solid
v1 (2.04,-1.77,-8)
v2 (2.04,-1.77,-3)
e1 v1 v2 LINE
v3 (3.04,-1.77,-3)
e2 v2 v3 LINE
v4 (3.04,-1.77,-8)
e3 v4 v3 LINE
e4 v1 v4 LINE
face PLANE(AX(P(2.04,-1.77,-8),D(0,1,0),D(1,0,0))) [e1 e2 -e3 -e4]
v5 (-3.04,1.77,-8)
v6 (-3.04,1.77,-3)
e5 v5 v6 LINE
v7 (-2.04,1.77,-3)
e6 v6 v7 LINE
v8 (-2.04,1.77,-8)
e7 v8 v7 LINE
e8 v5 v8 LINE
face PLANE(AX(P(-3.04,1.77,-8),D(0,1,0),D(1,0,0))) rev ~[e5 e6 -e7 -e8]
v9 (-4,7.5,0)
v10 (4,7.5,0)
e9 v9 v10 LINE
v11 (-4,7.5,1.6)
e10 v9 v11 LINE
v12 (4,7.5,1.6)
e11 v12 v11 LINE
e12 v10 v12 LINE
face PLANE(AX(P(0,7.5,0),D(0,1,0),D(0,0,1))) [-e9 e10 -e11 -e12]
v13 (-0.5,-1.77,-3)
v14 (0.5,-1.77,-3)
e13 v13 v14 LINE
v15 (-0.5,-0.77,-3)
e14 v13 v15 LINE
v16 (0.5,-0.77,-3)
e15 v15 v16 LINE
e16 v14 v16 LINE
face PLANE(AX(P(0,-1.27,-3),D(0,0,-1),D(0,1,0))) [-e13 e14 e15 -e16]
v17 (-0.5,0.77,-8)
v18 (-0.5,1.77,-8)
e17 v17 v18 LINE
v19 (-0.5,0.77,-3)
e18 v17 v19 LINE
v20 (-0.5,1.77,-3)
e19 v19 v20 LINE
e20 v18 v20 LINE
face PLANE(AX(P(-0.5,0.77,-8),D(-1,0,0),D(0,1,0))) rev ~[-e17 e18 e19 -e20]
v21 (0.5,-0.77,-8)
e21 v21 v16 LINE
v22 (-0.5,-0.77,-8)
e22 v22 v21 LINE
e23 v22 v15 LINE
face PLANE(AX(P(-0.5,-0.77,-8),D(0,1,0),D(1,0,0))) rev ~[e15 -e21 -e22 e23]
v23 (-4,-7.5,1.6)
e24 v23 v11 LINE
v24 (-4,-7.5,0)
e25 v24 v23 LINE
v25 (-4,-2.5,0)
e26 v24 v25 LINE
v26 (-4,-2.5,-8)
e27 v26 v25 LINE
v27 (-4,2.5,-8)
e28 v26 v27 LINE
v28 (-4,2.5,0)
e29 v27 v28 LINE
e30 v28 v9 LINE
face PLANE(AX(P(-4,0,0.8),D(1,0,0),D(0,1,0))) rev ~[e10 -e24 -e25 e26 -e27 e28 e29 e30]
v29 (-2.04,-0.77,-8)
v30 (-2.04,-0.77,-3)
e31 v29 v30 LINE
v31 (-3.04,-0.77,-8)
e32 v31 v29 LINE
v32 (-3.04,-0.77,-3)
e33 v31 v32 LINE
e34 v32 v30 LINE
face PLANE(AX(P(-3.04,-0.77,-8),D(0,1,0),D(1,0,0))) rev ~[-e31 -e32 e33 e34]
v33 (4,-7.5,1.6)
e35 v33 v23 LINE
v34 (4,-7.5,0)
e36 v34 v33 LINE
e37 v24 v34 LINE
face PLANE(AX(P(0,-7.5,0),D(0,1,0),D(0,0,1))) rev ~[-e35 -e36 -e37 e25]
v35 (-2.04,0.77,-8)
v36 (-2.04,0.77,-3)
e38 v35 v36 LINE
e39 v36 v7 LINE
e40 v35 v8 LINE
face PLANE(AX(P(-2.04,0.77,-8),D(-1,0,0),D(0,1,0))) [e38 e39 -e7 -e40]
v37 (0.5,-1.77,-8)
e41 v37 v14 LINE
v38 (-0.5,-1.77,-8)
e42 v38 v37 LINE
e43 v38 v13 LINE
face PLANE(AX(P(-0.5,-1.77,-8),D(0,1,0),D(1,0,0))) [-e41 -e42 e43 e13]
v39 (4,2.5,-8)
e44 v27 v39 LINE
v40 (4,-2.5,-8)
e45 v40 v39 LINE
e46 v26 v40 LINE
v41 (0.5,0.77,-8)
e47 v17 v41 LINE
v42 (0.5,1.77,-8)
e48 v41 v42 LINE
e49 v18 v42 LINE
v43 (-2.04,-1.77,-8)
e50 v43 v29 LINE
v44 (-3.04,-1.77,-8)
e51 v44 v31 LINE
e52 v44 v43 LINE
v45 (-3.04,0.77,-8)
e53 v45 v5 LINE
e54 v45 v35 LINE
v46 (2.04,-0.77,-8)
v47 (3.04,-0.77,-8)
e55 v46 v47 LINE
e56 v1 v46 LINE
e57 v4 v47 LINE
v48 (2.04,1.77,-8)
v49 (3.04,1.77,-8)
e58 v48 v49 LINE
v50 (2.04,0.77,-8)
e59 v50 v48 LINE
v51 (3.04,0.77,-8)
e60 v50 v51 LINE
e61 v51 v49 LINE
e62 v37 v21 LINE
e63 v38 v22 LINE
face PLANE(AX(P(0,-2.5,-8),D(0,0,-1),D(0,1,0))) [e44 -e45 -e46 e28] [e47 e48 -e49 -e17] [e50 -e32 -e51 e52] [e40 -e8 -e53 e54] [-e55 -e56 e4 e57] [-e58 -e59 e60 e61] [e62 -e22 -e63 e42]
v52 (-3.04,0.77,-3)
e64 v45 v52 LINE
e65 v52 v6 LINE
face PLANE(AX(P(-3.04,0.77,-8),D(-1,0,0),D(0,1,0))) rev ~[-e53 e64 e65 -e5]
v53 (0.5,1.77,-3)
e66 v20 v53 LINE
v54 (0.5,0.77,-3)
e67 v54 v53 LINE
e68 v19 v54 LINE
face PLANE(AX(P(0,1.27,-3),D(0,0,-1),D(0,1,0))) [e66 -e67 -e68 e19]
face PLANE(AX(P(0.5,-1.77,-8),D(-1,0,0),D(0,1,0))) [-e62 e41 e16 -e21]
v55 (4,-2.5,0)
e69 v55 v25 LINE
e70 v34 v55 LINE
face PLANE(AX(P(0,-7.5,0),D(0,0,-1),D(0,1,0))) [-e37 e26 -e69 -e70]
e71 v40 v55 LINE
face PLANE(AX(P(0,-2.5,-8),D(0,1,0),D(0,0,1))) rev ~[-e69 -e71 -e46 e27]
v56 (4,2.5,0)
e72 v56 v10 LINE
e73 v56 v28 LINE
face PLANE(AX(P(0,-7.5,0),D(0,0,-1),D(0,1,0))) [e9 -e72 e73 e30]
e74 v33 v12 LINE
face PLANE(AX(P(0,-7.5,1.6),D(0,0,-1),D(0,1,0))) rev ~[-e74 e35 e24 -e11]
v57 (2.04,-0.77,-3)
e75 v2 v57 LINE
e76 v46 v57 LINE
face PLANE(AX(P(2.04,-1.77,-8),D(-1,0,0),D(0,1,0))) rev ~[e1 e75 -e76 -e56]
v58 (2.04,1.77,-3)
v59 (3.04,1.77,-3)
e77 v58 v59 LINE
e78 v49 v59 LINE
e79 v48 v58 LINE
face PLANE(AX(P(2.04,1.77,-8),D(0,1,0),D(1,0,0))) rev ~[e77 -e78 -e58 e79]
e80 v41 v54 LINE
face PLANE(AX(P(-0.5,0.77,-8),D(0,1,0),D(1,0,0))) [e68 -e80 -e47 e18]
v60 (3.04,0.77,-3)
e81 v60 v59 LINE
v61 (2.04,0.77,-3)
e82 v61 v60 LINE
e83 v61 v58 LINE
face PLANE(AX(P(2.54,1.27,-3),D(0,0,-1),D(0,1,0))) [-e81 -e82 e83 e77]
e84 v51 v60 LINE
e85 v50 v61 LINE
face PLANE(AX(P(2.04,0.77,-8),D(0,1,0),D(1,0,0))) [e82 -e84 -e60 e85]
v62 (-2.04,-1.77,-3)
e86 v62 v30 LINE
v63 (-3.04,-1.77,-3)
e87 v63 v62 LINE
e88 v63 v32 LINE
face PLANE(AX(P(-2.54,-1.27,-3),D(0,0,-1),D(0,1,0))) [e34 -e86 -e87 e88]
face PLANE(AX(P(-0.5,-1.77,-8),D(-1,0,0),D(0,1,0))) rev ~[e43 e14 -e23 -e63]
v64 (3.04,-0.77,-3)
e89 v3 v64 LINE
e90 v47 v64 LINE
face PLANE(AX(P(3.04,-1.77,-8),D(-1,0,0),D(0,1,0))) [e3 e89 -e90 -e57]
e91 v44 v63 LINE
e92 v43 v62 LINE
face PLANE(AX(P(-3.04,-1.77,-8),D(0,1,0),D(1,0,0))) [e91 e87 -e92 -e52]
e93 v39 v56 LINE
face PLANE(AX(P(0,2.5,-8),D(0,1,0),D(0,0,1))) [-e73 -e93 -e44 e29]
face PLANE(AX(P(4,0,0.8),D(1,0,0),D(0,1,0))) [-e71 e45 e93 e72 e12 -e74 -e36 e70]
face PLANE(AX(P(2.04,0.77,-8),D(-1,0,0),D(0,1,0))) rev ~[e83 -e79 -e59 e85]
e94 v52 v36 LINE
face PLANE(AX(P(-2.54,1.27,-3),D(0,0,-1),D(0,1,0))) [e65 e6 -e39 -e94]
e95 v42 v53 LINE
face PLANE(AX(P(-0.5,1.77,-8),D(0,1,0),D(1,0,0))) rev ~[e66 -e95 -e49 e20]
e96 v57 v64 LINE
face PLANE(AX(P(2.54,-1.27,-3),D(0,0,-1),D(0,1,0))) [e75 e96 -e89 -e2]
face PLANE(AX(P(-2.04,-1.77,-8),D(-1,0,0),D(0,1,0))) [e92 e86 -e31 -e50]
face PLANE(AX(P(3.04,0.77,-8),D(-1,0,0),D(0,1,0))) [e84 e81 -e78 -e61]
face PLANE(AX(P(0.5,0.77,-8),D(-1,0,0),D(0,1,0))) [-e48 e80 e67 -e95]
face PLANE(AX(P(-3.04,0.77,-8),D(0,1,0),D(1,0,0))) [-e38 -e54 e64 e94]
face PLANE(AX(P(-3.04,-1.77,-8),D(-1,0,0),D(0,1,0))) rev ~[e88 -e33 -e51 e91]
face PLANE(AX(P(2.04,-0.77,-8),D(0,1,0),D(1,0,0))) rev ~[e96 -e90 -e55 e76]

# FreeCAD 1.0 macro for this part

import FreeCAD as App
import Part
import Sketcher
Q = App.Units.Quantity


def add_polygon(sketch, points):
    """Adds a closed chain of lines whose ends are joined by coincident constraints."""
    first, n = sketch.GeometryCount, len(points)
    for a, b in zip(points, points[1:] + points[:1]):
        sketch.addGeometry(Part.LineSegment(App.Vector(*a, 0), App.Vector(*b, 0)), False)
    for i in range(n):
        sketch.addConstraint(Sketcher.Constraint("Coincident", first + i, 2, first + (i + 1) % n, 1))

doc = App.newDocument("Part")
body = doc.addObject("PartDesign::Body", "Body")

# Sketch on YZ plane
sketch1 = doc.addObject("Sketcher::SketchObject", "Sketch")
body.addObject(sketch1)
sketch1.AttachmentSupport = (doc.YZ_Plane, [""])
sketch1.MapMode = "FlatFace"
add_polygon(sketch1, [(-7.5, 1.6), (-7.5, 0), (7.5, 0), (7.5, 1.6)])  # lines 0-3
sketch1.addConstraint([
    Sketcher.Constraint("Vertical", 0),
    Sketcher.Constraint("Horizontal", 1),
    Sketcher.Constraint("Vertical", 2),
    Sketcher.Constraint("Horizontal", 3),
    Sketcher.Constraint("Symmetric", 0, 2, 1, 2, -1, 1),
    Sketcher.Constraint("DistanceX", 1, 1, 1, 2, Q("15 mm")),
    Sketcher.Constraint("DistanceY", 0, 2, 0, 1, Q("1.6 mm")),
])
pad1 = doc.addObject("PartDesign::Pad", "Pad")
body.addObject(pad1)
pad1.Profile = sketch1
pad1.Length = 8
pad1.Midplane = True
body2 = doc.addObject("PartDesign::Body", "Body001")

# Sketch on YZ plane
sketch2 = doc.addObject("Sketcher::SketchObject", "Sketch001")
body2.addObject(sketch2)
sketch2.AttachmentSupport = (doc.getObject("YZ_Plane001"), [""])
sketch2.MapMode = "FlatFace"
add_polygon(sketch2, [(-2, 0), (-2, -8), (2, -8), (2, 0)])  # lines 0-3
sketch2.addConstraint([
    Sketcher.Constraint("Vertical", 0),
    Sketcher.Constraint("Horizontal", 1),
    Sketcher.Constraint("Vertical", 2),
    Sketcher.Constraint("Horizontal", 3),
    Sketcher.Constraint("Symmetric", 2, 2, 3, 2, -1, 1),
    Sketcher.Constraint("DistanceX", 1, 1, 1, 2, Q("5 mm")),
    Sketcher.Constraint("DistanceY", 0, 2, 0, 1, Q("8 mm")),
])
pad2 = doc.addObject("PartDesign::Pad", "Pad001")
body2.addObject(pad2)
pad2.Profile = sketch2
pad2.Length = 8
pad2.Midplane = True

# Sketch on XY plane
sketch3 = doc.addObject("Sketcher::SketchObject", "Sketch002")
body2.addObject(sketch3)
sketch3.AttachmentSupport = (doc.getObject("XY_Plane001"), [""])
sketch3.MapMode = "FlatFace"
sketch3.AttachmentOffset = App.Placement(App.Vector(0, 0, -8), App.Rotation())
add_polygon(sketch3, [(3, -1.8), (2, -1.8), (2, -0.8), (3, -0.8)])  # lines 0-3
add_polygon(sketch3, [(3, 0.8), (2, 0.8), (2, 1.8), (3, 1.8)])  # lines 4-7
add_polygon(sketch3, [(0.5, -1.8), (-0.5, -1.8), (-0.5, -0.8), (0.5, -0.8)])  # lines 8-11
add_polygon(sketch3, [(0.5, 0.8), (-0.5, 0.8), (-0.5, 1.8), (0.5, 1.8)])  # lines 12-15
add_polygon(sketch3, [(-2, -1.8), (-3, -1.8), (-3, -0.8), (-2, -0.8)])  # lines 16-19
add_polygon(sketch3, [(-2, 0.8), (-3, 0.8), (-3, 1.8), (-2, 1.8)])  # lines 20-23
sketch3.addConstraint([
    Sketcher.Constraint("Horizontal", 0),
    Sketcher.Constraint("Vertical", 1),
    Sketcher.Constraint("Horizontal", 2),
    Sketcher.Constraint("Vertical", 3),
    Sketcher.Constraint("Horizontal", 4),
    Sketcher.Constraint("Vertical", 5),
    Sketcher.Constraint("Horizontal", 6),
    Sketcher.Constraint("Vertical", 7),
    Sketcher.Constraint("Horizontal", 8),
    Sketcher.Constraint("Vertical", 9),
    Sketcher.Constraint("Horizontal", 10),
    Sketcher.Constraint("Vertical", 11),
    Sketcher.Constraint("Horizontal", 12),
    Sketcher.Constraint("Vertical", 13),
    Sketcher.Constraint("Horizontal", 14),
    Sketcher.Constraint("Vertical", 15),
    Sketcher.Constraint("Horizontal", 16),
    Sketcher.Constraint("Vertical", 17),
    Sketcher.Constraint("Horizontal", 18),
    Sketcher.Constraint("Vertical", 19),
    Sketcher.Constraint("Horizontal", 20),
    Sketcher.Constraint("Vertical", 21),
    Sketcher.Constraint("Horizontal", 22),
    Sketcher.Constraint("Vertical", 23),
    Sketcher.Constraint("Symmetric", 10, 2, 12, 2, -1, 1),
    Sketcher.Constraint("Symmetric", 8, 2, 14, 2, -1, 1),
    Sketcher.Constraint("Symmetric", 6, 2, 16, 2, -1, 1),
    Sketcher.Constraint("Symmetric", 4, 2, 18, 2, -1, 1),
    Sketcher.Constraint("Symmetric", 2, 2, 20, 2, -1, 1),
    Sketcher.Constraint("Symmetric", 0, 2, 22, 2, -1, 1),
    Sketcher.Constraint("Symmetric", 3, 2, 16, 2, -2),
    Sketcher.Constraint("Symmetric", 1, 2, 18, 2, -2),
    Sketcher.Constraint("Horizontal", 3, 2, 8, 2),
    Sketcher.Constraint("Horizontal", 2, 2, 9, 2),
    Sketcher.Constraint("Vertical", 9, 2, 12, 2),
    Sketcher.Constraint("Equal", 6, 8),
    Sketcher.Constraint("Equal", 22, 1),
    Sketcher.Constraint("DistanceX", 0, 2, 0, 1, Q("1 mm")),
    Sketcher.Constraint("DistanceX", -1, 1, 0, 2, Q("2.04 mm")),
    Sketcher.Constraint("DistanceY", 0, 2, -1, 1, Q("1.77 mm")),
])
pocket1 = doc.addObject("PartDesign::Pocket", "Pocket")
body2.addObject(pocket1)
pocket1.Profile = sketch3
pocket1.Length = 5
pocket1.Reversed = True
doc.recompute()

boolean = doc.addObject("PartDesign::Boolean", "Boolean")
body2.addObject(boolean)
boolean.Type = "Fuse"
boolean.addObjects([body])

doc.recompute()
